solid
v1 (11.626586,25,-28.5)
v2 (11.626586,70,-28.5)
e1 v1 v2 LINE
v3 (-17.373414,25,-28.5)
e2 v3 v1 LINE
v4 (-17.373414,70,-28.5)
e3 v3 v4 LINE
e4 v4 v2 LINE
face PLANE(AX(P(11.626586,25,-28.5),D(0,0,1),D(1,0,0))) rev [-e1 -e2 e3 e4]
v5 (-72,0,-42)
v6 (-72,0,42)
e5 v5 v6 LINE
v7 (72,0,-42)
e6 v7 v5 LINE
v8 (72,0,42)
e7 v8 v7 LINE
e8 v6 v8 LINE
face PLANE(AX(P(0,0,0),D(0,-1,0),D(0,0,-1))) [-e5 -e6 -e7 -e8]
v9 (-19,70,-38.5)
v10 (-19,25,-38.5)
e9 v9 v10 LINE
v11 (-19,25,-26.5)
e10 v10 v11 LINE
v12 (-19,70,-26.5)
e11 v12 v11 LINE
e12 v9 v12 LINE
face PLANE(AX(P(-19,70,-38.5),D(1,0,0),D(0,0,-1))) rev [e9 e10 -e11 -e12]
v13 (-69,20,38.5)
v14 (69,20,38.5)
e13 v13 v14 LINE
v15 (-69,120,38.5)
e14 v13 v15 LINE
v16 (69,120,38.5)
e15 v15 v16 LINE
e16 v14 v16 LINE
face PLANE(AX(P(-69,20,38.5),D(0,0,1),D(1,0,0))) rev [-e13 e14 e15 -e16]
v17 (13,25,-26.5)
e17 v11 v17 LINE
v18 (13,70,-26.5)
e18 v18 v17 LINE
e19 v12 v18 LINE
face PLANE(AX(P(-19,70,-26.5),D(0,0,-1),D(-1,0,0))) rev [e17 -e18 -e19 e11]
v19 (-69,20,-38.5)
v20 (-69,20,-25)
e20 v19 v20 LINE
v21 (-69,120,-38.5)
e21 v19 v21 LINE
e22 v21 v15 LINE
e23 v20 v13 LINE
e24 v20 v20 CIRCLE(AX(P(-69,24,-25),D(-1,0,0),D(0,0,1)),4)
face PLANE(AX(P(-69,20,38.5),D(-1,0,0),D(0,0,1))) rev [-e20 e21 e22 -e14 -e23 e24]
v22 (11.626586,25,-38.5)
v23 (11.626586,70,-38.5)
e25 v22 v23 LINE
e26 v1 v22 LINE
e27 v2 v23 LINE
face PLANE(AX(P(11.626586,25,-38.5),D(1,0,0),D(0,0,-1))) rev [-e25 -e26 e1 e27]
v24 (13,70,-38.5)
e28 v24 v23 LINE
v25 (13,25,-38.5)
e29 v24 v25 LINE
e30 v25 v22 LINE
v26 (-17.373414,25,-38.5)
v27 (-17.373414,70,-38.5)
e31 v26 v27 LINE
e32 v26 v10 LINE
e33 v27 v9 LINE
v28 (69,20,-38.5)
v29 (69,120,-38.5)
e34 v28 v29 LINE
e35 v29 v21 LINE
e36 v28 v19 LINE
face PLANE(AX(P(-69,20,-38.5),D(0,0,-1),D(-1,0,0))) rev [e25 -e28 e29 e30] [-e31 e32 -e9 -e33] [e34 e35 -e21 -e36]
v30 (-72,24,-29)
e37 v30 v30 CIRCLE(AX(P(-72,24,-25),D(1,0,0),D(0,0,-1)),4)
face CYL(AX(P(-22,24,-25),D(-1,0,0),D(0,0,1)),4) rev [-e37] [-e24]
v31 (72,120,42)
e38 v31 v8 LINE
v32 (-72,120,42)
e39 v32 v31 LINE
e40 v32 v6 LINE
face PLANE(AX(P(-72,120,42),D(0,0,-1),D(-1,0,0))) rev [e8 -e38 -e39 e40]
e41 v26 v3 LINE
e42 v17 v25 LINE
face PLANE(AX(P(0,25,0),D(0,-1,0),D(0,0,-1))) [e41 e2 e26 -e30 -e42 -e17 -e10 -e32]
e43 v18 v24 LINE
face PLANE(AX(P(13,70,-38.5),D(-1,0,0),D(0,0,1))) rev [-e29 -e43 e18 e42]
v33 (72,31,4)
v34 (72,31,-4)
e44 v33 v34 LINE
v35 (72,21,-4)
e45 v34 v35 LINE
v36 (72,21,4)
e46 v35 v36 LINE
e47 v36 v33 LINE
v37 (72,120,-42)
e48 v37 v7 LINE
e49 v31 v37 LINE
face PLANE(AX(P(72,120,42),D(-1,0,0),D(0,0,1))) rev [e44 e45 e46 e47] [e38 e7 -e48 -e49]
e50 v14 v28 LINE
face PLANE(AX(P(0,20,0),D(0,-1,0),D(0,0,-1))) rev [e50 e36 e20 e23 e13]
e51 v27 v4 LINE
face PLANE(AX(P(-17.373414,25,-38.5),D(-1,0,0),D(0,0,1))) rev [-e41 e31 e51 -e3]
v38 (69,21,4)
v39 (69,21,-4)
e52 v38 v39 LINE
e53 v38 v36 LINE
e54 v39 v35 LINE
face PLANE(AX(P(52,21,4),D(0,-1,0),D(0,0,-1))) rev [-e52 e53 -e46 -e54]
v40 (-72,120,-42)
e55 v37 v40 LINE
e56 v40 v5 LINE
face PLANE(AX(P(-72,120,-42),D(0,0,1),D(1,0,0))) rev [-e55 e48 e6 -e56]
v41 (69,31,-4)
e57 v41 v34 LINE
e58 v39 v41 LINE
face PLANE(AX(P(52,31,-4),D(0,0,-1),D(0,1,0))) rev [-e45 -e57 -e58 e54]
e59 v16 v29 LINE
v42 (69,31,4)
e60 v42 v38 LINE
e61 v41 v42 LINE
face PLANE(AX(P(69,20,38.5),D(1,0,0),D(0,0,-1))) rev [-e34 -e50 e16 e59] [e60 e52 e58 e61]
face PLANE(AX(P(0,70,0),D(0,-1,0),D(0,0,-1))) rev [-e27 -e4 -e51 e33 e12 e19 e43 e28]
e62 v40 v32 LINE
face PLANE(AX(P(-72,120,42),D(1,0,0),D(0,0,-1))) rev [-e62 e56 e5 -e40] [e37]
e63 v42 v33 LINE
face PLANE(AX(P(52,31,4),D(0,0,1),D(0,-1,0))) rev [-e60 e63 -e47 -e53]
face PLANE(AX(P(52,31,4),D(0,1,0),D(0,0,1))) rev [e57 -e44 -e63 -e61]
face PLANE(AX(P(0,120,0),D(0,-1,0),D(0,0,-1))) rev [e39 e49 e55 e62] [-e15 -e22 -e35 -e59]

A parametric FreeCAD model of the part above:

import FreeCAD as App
import Part
import Sketcher
Q = App.Units.Quantity


def add_polygon(sketch, points):
    """Adds a closed chain of lines whose ends are joined by coincident constraints."""
    first, n = sketch.GeometryCount, len(points)
    for a, b in zip(points, points[1:] + points[:1]):
        sketch.addGeometry(Part.LineSegment(App.Vector(*a, 0), App.Vector(*b, 0)), False)
    for i in range(n):
        sketch.addConstraint(Sketcher.Constraint("Coincident", first + i, 2, first + (i + 1) % n, 1))

doc = App.newDocument("Part")
params = doc.addObject("Spreadsheet::Sheet", "Params")
for row, (alias, value) in enumerate([
    ("sketch1_width", "144 mm"),
    ("sketch1_height", "84 mm"),
    ("pad1_length", "120 mm"),
    ("sketch2_width", "138 mm"),
    ("sketch2_height", "77 mm"),
    ("pocket1_length", "100 mm"),
    ("sketch3_diameter", "8 mm"),
    ("pocket2_length", "100 mm"),
    ("sketch4_width", "10 mm"),
    ("sketch4_height", "8 mm"),
    ("pocket3_length", "40 mm"),
    ("sketch5_width", "32 mm"),
    ("sketch5_height", "12 mm"),
    ("pad2_length", "45 mm"),
    ("sketch6_width", "32 mm"),
    ("sketch6_height", "12 mm"),
    ("pad3_length", "45 mm"),
    ("sketch7_width", "29 mm"),
    ("sketch7_height", "10 mm"),
    ("pocket4_length", "45 mm"),
], start=1):
    params.set(f"A{row}", alias)
    params.set(f"B{row}", "=" + value)
    params.setAlias(f"B{row}", alias)

body = doc.addObject("PartDesign::Body", "Body")

# Sketch on XZ plane
sketch1 = body.newObject("Sketcher::SketchObject", "Sketch")
sketch1.AttachmentSupport = (doc.getObject("XZ_Plane"), [""])
sketch1.MapMode = "FlatFace"
add_polygon(sketch1, [(-72, -42), (-72, 42), (72, 42), (72, -42)])  # lines 0-3
sketch1.addConstraint(Sketcher.Constraint("Vertical", 0))
sketch1.addConstraint(Sketcher.Constraint("Horizontal", 1))
sketch1.addConstraint(Sketcher.Constraint("Vertical", 2))
sketch1.addConstraint(Sketcher.Constraint("Horizontal", 3))
sketch1.addConstraint(Sketcher.Constraint("Symmetric", 0, 2, 2, 2, -1, 1))
sketch1.addConstraint(Sketcher.Constraint("DistanceX", 1, 1, 1, 2, Q("144 mm")))
sketch1.addConstraint(Sketcher.Constraint("DistanceY", 0, 1, 0, 2, Q("84 mm")))
sketch1.setExpression("Constraints[9]", "Params.sketch1_width")
sketch1.setExpression("Constraints[10]", "Params.sketch1_height")
pad1 = body.newObject("PartDesign::Pad", "Pad")
pad1.Profile = sketch1
pad1.setExpression("Length", "Params.pad1_length")
pad1.Reversed = True

# Sketch on XZ plane
sketch2 = body.newObject("Sketcher::SketchObject", "Sketch001")
sketch2.AttachmentSupport = (doc.getObject("XZ_Plane"), [""])
sketch2.MapMode = "FlatFace"
sketch2.AttachmentOffset = App.Placement(App.Vector(0, 0, -120), App.Rotation())
add_polygon(sketch2, [(-69, -38), (-69, 38), (69, 38), (69, -38)])  # lines 0-3
sketch2.addConstraint(Sketcher.Constraint("Vertical", 0))
sketch2.addConstraint(Sketcher.Constraint("Horizontal", 1))
sketch2.addConstraint(Sketcher.Constraint("Vertical", 2))
sketch2.addConstraint(Sketcher.Constraint("Horizontal", 3))
sketch2.addConstraint(Sketcher.Constraint("Symmetric", 0, 2, 2, 2, -1, 1))
sketch2.addConstraint(Sketcher.Constraint("DistanceX", 1, 1, 1, 2, Q("138 mm")))
sketch2.addConstraint(Sketcher.Constraint("DistanceY", 0, 1, 0, 2, Q("77 mm")))
sketch2.setExpression("Constraints[9]", "Params.sketch2_width")
sketch2.setExpression("Constraints[10]", "Params.sketch2_height")
pocket1 = body.newObject("PartDesign::Pocket", "Pocket")
pocket1.Profile = sketch2
pocket1.setExpression("Length", "Params.pocket1_length")
pocket1.Reversed = True

# Sketch on YZ plane
sketch3 = body.newObject("Sketcher::SketchObject", "Sketch002")
sketch3.AttachmentSupport = (doc.getObject("YZ_Plane"), [""])
sketch3.MapMode = "FlatFace"
sketch3.AttachmentOffset = App.Placement(App.Vector(0, 0, -72), App.Rotation())
sketch3.addGeometry(Part.Circle(App.Vector(24, -25, 0), App.Vector(0, 0, 1), 4), False)
sketch3.addConstraint(Sketcher.Constraint("Diameter", 0, Q("8 mm")))
sketch3.addConstraint(Sketcher.Constraint("DistanceX", -1, 1, 0, 3, Q("24 mm")))
sketch3.addConstraint(Sketcher.Constraint("DistanceY", 0, 3, -1, 1, Q("25 mm")))
sketch3.setExpression("Constraints[0]", "Params.sketch3_diameter")
pocket2 = body.newObject("PartDesign::Pocket", "Pocket001")
pocket2.Profile = sketch3
pocket2.setExpression("Length", "Params.pocket2_length")
pocket2.Midplane = True

# Sketch on YZ plane
sketch4 = body.newObject("Sketcher::SketchObject", "Sketch003")
sketch4.AttachmentSupport = (doc.getObject("YZ_Plane"), [""])
sketch4.MapMode = "FlatFace"
sketch4.AttachmentOffset = App.Placement(App.Vector(0, 0, 72), App.Rotation())
add_polygon(sketch4, [(31, 4), (21, 4), (21, -4), (31, -4)])  # lines 0-3
sketch4.addConstraint(Sketcher.Constraint("Horizontal", 0))
sketch4.addConstraint(Sketcher.Constraint("Vertical", 1))
sketch4.addConstraint(Sketcher.Constraint("Horizontal", 2))
sketch4.addConstraint(Sketcher.Constraint("Vertical", 3))
sketch4.addConstraint(Sketcher.Constraint("DistanceX", 0, 2, 0, 1, Q("10 mm")))
sketch4.addConstraint(Sketcher.Constraint("DistanceY", 1, 2, 1, 1, Q("8 mm")))
sketch4.addConstraint(Sketcher.Constraint("DistanceX", -1, 1, 0, 2, Q("21 mm")))
sketch4.addConstraint(Sketcher.Constraint("DistanceY", -1, 1, 0, 2, Q("4 mm")))
sketch4.setExpression("Constraints[8]", "Params.sketch4_width")
sketch4.setExpression("Constraints[9]", "Params.sketch4_height")
pocket3 = body.newObject("PartDesign::Pocket", "Pocket002")
pocket3.Profile = sketch4
pocket3.setExpression("Length", "Params.pocket3_length")
pocket3.Midplane = True

# Sketch on XZ plane
sketch5 = body.newObject("Sketcher::SketchObject", "Sketch004")
sketch5.AttachmentSupport = (doc.getObject("XZ_Plane"), [""])
sketch5.MapMode = "FlatFace"
sketch5.AttachmentOffset = App.Placement(App.Vector(0, 0, -25), App.Rotation())
add_polygon(sketch5, [(-19, -38), (-19, -26), (13, -26), (13, -38)])  # lines 0-3
sketch5.addConstraint(Sketcher.Constraint("Vertical", 0))
sketch5.addConstraint(Sketcher.Constraint("Horizontal", 1))
sketch5.addConstraint(Sketcher.Constraint("Vertical", 2))
sketch5.addConstraint(Sketcher.Constraint("Horizontal", 3))
sketch5.addConstraint(Sketcher.Constraint("DistanceX", 1, 1, 1, 2, Q("32 mm")))
sketch5.addConstraint(Sketcher.Constraint("DistanceY", 0, 1, 0, 2, Q("12 mm")))
sketch5.addConstraint(Sketcher.Constraint("DistanceX", 0, 2, -1, 1, Q("19 mm")))
sketch5.addConstraint(Sketcher.Constraint("DistanceY", 0, 2, -1, 1, Q("26.5 mm")))
sketch5.setExpression("Constraints[8]", "Params.sketch5_width")
sketch5.setExpression("Constraints[9]", "Params.sketch5_height")
pad2 = body.newObject("PartDesign::Pad", "Pad001")
pad2.Profile = sketch5
pad2.setExpression("Length", "Params.pad2_length")
pad2.Reversed = True

# Sketch on XZ plane
sketch6 = body.newObject("Sketcher::SketchObject", "Sketch005")
sketch6.AttachmentSupport = (doc.getObject("XZ_Plane"), [""])
sketch6.MapMode = "FlatFace"
sketch6.AttachmentOffset = App.Placement(App.Vector(0, 0, -25), App.Rotation())
add_polygon(sketch6, [(-19, -38), (-19, -26), (13, -26), (13, -38)])  # lines 0-3
sketch6.addConstraint(Sketcher.Constraint("Vertical", 0))
sketch6.addConstraint(Sketcher.Constraint("Horizontal", 1))
sketch6.addConstraint(Sketcher.Constraint("Vertical", 2))
sketch6.addConstraint(Sketcher.Constraint("Horizontal", 3))
sketch6.addConstraint(Sketcher.Constraint("DistanceX", 1, 1, 1, 2, Q("32 mm")))
sketch6.addConstraint(Sketcher.Constraint("DistanceY", 0, 1, 0, 2, Q("12 mm")))
sketch6.addConstraint(Sketcher.Constraint("DistanceX", 0, 2, -1, 1, Q("19 mm")))
sketch6.addConstraint(Sketcher.Constraint("DistanceY", 0, 2, -1, 1, Q("26.5 mm")))
sketch6.setExpression("Constraints[8]", "Params.sketch6_width")
sketch6.setExpression("Constraints[9]", "Params.sketch6_height")
pad3 = body.newObject("PartDesign::Pad", "Pad002")
pad3.Profile = sketch6
pad3.setExpression("Length", "Params.pad3_length")
pad3.Reversed = True

# Sketch on XZ plane
sketch7 = body.newObject("Sketcher::SketchObject", "Sketch006")
sketch7.AttachmentSupport = (doc.getObject("XZ_Plane"), [""])
sketch7.MapMode = "FlatFace"
sketch7.AttachmentOffset = App.Placement(App.Vector(0, 0, -70), App.Rotation())
add_polygon(sketch7, [(-17, -38), (-17, -28), (12, -28), (12, -38)])  # lines 0-3
sketch7.addConstraint(Sketcher.Constraint("Vertical", 0))
sketch7.addConstraint(Sketcher.Constraint("Horizontal", 1))
sketch7.addConstraint(Sketcher.Constraint("Vertical", 2))
sketch7.addConstraint(Sketcher.Constraint("Horizontal", 3))
sketch7.addConstraint(Sketcher.Constraint("DistanceX", 1, 1, 1, 2, Q("29 mm")))
sketch7.addConstraint(Sketcher.Constraint("DistanceY", 0, 1, 0, 2, Q("10 mm")))
sketch7.addConstraint(Sketcher.Constraint("DistanceY", 0, 2, -1, 1, Q("28.5 mm")))
sketch7.addConstraint(Sketcher.Constraint("DistanceX", 0, 2, -1, 1, Q("17.373414 mm")))
sketch7.setExpression("Constraints[8]", "Params.sketch7_width")
sketch7.setExpression("Constraints[9]", "Params.sketch7_height")
pocket4 = body.newObject("PartDesign::Pocket", "Pocket003")
pocket4.Profile = sketch7
pocket4.setExpression("Length", "Params.pocket4_length")
pocket4.Reversed = True

doc.recompute()
